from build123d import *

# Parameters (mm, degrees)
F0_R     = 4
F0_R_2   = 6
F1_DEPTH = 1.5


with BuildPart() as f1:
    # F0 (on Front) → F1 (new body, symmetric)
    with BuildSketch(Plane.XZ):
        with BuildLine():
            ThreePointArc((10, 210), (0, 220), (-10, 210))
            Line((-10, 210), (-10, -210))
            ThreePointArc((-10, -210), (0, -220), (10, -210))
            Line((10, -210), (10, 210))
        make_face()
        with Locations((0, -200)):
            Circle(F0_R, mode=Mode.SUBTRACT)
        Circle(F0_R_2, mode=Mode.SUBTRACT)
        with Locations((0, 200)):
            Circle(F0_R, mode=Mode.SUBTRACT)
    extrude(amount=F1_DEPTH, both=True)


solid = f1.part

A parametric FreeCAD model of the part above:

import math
import FreeCAD as App
import Part
import Sketcher

V = App.Vector
Q = App.Units.Quantity

doc = App.newDocument("Part")
body = doc.addObject("PartDesign::Body", "Body")

# Sketch on XZ plane
sketch1 = doc.addObject("Sketcher::SketchObject", "Sketch")
body.addObject(sketch1)
sketch1.AttachmentSupport = (doc.XZ_Plane, [""])
sketch1.MapMode = "FlatFace"
sketch1.addGeometry(Part.ArcOfCircle(Part.Circle(V(0, 210, 0), V(0, 0, 1), 10), math.radians(0), math.radians(180)), False)
sketch1.addGeometry(Part.LineSegment(V(-10, 210, 0), V(-10, -210, 0)), False)
sketch1.addGeometry(Part.ArcOfCircle(Part.Circle(V(0, -210, 0), V(0, 0, 1), 10), math.radians(180), math.radians(360)), False)
sketch1.addGeometry(Part.LineSegment(V(10, -210, 0), V(10, 210, 0)), False)
sketch1.addGeometry(Part.Circle(V(0, -200, 0), V(0, 0, 1), 4), False)
sketch1.addGeometry(Part.Circle(V(0, 0, 0), V(0, 0, 1), 6), False)
sketch1.addGeometry(Part.Circle(V(0, 200, 0), V(0, 0, 1), 4), False)
sketch1.addConstraint(Sketcher.Constraint("Tangent", 0, 2, 1, 1))
sketch1.addConstraint(Sketcher.Constraint("Tangent", 1, 2, 2, 1))
sketch1.addConstraint(Sketcher.Constraint("Tangent", 2, 2, 3, 1))
sketch1.addConstraint(Sketcher.Constraint("Tangent", 3, 2, 0, 1))
sketch1.addConstraint(Sketcher.Constraint("Vertical", 1))
sketch1.addConstraint(Sketcher.Constraint("Vertical", 3))
sketch1.addConstraint(Sketcher.Constraint("Coincident", 5, 3, -1, 1))
sketch1.addConstraint(Sketcher.Constraint("Equal", 4, 6))
sketch1.addConstraint(Sketcher.Constraint("Symmetric", 0, 3, 2, 3, -1, 1))
sketch1.addConstraint(Sketcher.Constraint("Symmetric", 4, 3, 6, 3, -1, 1))
sketch1.addConstraint(Sketcher.Constraint("PointOnObject", 4, 3, -2))
sketch1.addConstraint(Sketcher.Constraint("Diameter", 4, Q("8 mm")))
sketch1.addConstraint(Sketcher.Constraint("Diameter", 5, Q("12 mm")))
sketch1.addConstraint(Sketcher.Constraint("Radius", 0, Q("10 mm")))
sketch1.addConstraint(Sketcher.Constraint("DistanceY", 1, 2, 1, 1, Q("420 mm")))
sketch1.addConstraint(Sketcher.Constraint("DistanceY", 4, 3, -1, 1, Q("200 mm")))
pad1 = doc.addObject("PartDesign::Pad", "Pad")
body.addObject(pad1)
pad1.Profile = sketch1
pad1.Length = 3
pad1.Midplane = True

doc.recompute()
